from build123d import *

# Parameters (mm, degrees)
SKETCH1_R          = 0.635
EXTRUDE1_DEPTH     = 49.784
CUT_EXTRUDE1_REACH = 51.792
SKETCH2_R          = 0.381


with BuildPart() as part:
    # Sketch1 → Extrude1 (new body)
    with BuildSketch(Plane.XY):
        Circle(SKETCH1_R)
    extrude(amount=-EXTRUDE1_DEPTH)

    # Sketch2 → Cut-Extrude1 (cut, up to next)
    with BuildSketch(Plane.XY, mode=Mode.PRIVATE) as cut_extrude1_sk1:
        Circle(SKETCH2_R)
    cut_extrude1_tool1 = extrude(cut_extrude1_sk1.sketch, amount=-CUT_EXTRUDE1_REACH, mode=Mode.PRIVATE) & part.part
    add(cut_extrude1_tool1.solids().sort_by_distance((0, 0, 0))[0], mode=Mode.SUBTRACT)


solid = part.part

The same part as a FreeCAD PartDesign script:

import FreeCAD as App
import Part
import Sketcher
Q = App.Units.Quantity

doc = App.newDocument("Part")
params = doc.addObject("Spreadsheet::Sheet", "Params")
for row, (alias, value) in enumerate([
    ("sketch1_diameter", "0.05 in"),
    ("pad1_length", "1.96 in"),
    ("sketch2_diameter", "0.03 in"),
], start=1):
    params.set(f"A{row}", alias)
    params.set(f"B{row}", "=" + value)
    params.setAlias(f"B{row}", alias)

body = doc.addObject("PartDesign::Body", "Body")

# Sketch on XY plane
sketch1 = body.newObject("Sketcher::SketchObject", "Sketch")
sketch1.AttachmentSupport = (doc.getObject("XY_Plane"), [""])
sketch1.MapMode = "FlatFace"
sketch1.addGeometry(Part.Circle(App.Vector(0, 0, 0), App.Vector(0, 0, 1), 0.6), False)
sketch1.addConstraint([
    Sketcher.Constraint("Coincident", 0, 3, -1, 1),
    Sketcher.Constraint("Diameter", 0, Q("0.05 in")),
])
sketch1.setExpression("Constraints[1]", "Params.sketch1_diameter")
pad1 = body.newObject("PartDesign::Pad", "Pad")
pad1.Profile = sketch1
pad1.setExpression("Length", "Params.pad1_length")
pad1.Reversed = True

# Sketch on XY plane
sketch2 = body.newObject("Sketcher::SketchObject", "Sketch001")
sketch2.AttachmentSupport = (doc.getObject("XY_Plane"), [""])
sketch2.MapMode = "FlatFace"
sketch2.addGeometry(Part.Circle(App.Vector(0, 0, 0), App.Vector(0, 0, 1), 0.38), False)
sketch2.addConstraint([
    Sketcher.Constraint("Coincident", 0, 3, -1, 1),
    Sketcher.Constraint("Diameter", 0, Q("0.03 in")),
])
sketch2.setExpression("Constraints[1]", "Params.sketch2_diameter")
pocket1 = body.newObject("PartDesign::Pocket", "Pocket")
pocket1.Profile = sketch2
pocket1.Type = "UpToFirst"

doc.recompute()
